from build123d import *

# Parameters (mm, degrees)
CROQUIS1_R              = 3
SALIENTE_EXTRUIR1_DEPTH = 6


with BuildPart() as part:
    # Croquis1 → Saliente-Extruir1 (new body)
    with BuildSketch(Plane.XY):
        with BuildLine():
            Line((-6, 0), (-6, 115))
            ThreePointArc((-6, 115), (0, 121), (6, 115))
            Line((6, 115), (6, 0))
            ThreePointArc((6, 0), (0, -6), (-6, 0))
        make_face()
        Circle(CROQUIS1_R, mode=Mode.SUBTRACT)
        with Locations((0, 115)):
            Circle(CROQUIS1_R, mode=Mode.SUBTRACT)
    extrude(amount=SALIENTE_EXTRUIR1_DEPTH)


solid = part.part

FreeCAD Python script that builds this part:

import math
import FreeCAD as App
import Part
import Sketcher
from FreeCAD import Vector

doc = App.newDocument("Part")
body = doc.addObject("PartDesign::Body", "Body")

# Sketch on XY plane
sketch1 = doc.addObject("Sketcher::SketchObject", "Sketch")
body.addObject(sketch1)
sketch1.AttachmentSupport = (doc.XY_Plane, [""])
sketch1.MapMode = "FlatFace"
sketch1.addGeometry([
    Part.LineSegment(Vector(-6, 115, 0), Vector(-6, 0, 0)),  # 0
    Part.ArcOfCircle(Part.Circle(Vector(0, 0, 0), Vector(0, 0, 1), 6), math.radians(180), math.radians(360)),  # 1
    Part.LineSegment(Vector(6, 0, 0), Vector(6, 115, 0)),  # 2
    Part.ArcOfCircle(Part.Circle(Vector(0, 115, 0), Vector(0, 0, 1), 6), math.radians(0), math.radians(180)),  # 3
    Part.Circle(Vector(0, 0, 0), Vector(0, 0, 1), 3),  # 4
    Part.Circle(Vector(0, 115, 0), Vector(0, 0, 1), 3),  # 5
], False)
sketch1.addConstraint([
    Sketcher.Constraint("Tangent", 0, 2, 1, 1),
    Sketcher.Constraint("Tangent", 1, 2, 2, 1),
    Sketcher.Constraint("Tangent", 2, 2, 3, 1),
    Sketcher.Constraint("Tangent", 3, 2, 0, 1),
    Sketcher.Constraint("Vertical", 0),
    Sketcher.Constraint("Vertical", 2),
    Sketcher.Constraint("Coincident", 1, 3, -1, 1),
    Sketcher.Constraint("Coincident", 4, 3, -1, 1),
    Sketcher.Constraint("Coincident", 5, 3, 3, 3),
    Sketcher.Constraint("Equal", 4, 5),
    Sketcher.Constraint("Diameter", 4, 6.0),
    Sketcher.Constraint("Radius", 1, 6.0),
    Sketcher.Constraint("DistanceY", 0, 2, 0, 1, 115.0),
])
pad1 = doc.addObject("PartDesign::Pad", "Pad")
body.addObject(pad1)
pad1.Profile = sketch1
pad1.Length = 6

doc.recompute()
